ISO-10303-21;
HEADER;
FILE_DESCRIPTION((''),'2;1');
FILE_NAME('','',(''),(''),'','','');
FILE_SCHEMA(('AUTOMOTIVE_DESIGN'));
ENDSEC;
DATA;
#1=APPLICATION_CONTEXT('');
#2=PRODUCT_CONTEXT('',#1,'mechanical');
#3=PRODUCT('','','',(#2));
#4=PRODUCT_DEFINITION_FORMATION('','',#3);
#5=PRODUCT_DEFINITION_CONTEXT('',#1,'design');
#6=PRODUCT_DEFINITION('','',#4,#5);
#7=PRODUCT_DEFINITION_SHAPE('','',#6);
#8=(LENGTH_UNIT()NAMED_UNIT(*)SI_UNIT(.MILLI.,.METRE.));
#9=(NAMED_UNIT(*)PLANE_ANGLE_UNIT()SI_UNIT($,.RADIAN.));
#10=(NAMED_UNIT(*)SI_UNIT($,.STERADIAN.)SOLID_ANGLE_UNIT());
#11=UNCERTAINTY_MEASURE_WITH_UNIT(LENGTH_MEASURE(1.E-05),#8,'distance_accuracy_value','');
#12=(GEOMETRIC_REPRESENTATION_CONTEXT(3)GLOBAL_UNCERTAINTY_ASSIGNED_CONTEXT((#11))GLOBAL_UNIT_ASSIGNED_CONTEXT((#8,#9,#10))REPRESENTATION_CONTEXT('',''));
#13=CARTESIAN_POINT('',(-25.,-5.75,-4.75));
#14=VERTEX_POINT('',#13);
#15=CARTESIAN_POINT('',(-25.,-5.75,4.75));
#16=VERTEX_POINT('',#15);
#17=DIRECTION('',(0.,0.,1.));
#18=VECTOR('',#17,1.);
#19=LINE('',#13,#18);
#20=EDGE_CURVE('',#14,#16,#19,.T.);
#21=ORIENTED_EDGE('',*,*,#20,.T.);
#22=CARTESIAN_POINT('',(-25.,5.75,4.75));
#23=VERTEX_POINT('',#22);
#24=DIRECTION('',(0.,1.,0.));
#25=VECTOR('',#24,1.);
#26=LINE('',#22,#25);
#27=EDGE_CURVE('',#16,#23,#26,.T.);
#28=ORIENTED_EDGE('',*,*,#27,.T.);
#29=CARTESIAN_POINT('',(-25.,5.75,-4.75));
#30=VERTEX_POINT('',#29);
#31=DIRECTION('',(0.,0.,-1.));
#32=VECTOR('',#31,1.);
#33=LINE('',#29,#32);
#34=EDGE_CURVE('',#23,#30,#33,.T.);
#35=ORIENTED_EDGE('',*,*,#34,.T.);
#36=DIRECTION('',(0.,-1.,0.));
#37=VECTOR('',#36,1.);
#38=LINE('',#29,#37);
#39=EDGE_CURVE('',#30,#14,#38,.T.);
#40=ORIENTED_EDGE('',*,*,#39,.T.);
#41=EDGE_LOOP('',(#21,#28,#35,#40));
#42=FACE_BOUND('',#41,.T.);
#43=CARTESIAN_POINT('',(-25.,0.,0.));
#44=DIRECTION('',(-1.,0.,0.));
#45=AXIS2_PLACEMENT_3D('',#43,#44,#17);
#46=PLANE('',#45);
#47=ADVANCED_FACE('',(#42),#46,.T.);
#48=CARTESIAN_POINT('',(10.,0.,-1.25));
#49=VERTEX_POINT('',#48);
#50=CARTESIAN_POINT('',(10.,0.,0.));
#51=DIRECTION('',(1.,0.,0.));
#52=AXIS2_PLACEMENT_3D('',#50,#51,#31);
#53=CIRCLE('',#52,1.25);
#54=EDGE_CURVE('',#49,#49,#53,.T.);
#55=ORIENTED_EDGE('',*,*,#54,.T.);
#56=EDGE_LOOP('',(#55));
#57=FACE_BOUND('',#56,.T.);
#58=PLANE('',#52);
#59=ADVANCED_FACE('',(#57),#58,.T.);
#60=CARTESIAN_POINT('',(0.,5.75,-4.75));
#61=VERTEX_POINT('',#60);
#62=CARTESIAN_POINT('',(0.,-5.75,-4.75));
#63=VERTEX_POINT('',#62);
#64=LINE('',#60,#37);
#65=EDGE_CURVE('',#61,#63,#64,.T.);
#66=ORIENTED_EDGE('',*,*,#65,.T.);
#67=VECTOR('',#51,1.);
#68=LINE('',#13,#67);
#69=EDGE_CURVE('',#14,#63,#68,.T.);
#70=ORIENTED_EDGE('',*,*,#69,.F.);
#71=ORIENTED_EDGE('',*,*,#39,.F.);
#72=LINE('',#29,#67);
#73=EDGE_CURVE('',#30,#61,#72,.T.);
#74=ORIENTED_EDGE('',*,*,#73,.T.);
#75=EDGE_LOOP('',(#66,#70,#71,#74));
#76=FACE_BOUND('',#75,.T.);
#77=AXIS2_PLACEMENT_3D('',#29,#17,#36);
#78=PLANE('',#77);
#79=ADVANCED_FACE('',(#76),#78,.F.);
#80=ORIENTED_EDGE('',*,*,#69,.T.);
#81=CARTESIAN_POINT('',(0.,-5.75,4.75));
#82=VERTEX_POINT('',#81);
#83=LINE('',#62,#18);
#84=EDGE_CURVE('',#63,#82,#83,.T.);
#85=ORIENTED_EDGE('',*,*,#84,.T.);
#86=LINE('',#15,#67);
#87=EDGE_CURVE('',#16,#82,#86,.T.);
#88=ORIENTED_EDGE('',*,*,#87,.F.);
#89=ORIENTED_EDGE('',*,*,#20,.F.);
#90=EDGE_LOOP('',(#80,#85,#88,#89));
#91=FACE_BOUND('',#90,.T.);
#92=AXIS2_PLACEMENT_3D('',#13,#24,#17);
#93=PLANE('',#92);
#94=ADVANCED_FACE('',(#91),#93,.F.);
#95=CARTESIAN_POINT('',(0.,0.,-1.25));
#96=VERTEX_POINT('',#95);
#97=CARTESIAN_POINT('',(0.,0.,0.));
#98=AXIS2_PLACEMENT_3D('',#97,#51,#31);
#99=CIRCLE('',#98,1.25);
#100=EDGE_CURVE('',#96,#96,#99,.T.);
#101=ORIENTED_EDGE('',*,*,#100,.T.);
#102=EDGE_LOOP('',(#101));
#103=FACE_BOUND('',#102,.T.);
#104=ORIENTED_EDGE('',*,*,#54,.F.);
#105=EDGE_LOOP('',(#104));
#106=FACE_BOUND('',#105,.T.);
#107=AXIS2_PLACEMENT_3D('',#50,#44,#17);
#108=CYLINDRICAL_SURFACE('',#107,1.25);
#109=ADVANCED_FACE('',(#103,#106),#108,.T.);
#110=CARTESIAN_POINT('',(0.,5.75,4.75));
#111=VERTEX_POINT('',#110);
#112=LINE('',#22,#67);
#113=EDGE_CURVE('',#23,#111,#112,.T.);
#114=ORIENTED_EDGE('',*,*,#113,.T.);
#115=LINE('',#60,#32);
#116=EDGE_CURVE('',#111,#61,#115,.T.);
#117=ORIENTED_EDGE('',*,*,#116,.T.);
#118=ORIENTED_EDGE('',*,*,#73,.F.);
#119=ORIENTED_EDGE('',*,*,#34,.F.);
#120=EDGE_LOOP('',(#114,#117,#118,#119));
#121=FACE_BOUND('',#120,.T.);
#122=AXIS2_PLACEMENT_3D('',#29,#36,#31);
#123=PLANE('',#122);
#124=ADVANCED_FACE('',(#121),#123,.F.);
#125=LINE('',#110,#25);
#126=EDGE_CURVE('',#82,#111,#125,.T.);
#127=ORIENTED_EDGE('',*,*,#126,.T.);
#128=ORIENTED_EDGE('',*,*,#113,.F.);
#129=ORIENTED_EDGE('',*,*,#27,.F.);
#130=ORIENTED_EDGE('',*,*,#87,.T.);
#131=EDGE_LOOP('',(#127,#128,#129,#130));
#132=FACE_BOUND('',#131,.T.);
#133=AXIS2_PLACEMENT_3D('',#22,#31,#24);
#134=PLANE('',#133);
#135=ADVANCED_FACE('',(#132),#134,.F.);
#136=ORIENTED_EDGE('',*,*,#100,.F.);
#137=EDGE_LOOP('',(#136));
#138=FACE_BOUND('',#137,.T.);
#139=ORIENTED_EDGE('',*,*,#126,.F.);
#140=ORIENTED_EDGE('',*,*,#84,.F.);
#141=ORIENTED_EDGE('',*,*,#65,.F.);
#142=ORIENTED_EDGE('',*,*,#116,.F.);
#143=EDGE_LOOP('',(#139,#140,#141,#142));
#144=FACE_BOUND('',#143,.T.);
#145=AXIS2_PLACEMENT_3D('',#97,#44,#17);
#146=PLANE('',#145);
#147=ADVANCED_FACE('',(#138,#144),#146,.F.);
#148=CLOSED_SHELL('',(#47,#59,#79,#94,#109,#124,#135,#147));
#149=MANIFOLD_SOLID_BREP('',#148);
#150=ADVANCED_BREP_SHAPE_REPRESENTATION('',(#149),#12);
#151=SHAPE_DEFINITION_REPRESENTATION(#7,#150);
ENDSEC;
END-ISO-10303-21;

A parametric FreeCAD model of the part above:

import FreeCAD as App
import Part
import Sketcher
from FreeCAD import Vector
Q = App.Units.Quantity

doc = App.newDocument("Part")
body = doc.addObject("PartDesign::Body", "Body")

# Sketch on YZ plane
sketch1 = body.newObject("Sketcher::SketchObject", "Sketch")
sketch1.AttachmentSupport = (doc.getObject("YZ_Plane"), [""])
sketch1.MapMode = "FlatFace"
sketch1.addGeometry(Part.Circle(Vector(0, 0, 0), Vector(0, 0, 1), 1.2), False)
sketch1.addConstraint([
    Sketcher.Constraint("Coincident", 0, 3, -1, 1),
    Sketcher.Constraint("Diameter", 0, Q("2.5 mm")),
])
pad1 = body.newObject("PartDesign::Pad", "Pad")
pad1.Profile = sketch1
pad1.Length = 10

# Sketch on YZ plane
sketch2 = body.newObject("Sketcher::SketchObject", "Sketch001")
sketch2.AttachmentSupport = (doc.getObject("YZ_Plane"), [""])
sketch2.MapMode = "FlatFace"
sketch2.addGeometry([
    Part.LineSegment(Vector(6, -5, 0), Vector(-6, -5, 0)),
    Part.LineSegment(Vector(-6, -5, 0), Vector(-6, 5, 0)),
    Part.LineSegment(Vector(-6, 5, 0), Vector(6, 5, 0)),
    Part.LineSegment(Vector(6, 5, 0), Vector(6, -5, 0)),
], False)
sketch2.addConstraint([
    Sketcher.Constraint("Coincident", 0, 2, 1, 1),
    Sketcher.Constraint("Coincident", 1, 2, 2, 1),
    Sketcher.Constraint("Coincident", 2, 2, 3, 1),
    Sketcher.Constraint("Coincident", 3, 2, 0, 1),
    Sketcher.Constraint("Horizontal", 0),
    Sketcher.Constraint("Vertical", 1),
    Sketcher.Constraint("Horizontal", 2),
    Sketcher.Constraint("Vertical", 3),
    Sketcher.Constraint("Symmetric", 0, 2, 2, 2, -1, 1),
    Sketcher.Constraint("DistanceX", 0, 2, 0, 1, Q("11.5 mm")),
    Sketcher.Constraint("DistanceY", 1, 1, 1, 2, Q("9.5 mm")),
])
pad2 = body.newObject("PartDesign::Pad", "Pad001")
pad2.Profile = sketch2
pad2.Length = 25
pad2.Reversed = True

doc.recompute()
